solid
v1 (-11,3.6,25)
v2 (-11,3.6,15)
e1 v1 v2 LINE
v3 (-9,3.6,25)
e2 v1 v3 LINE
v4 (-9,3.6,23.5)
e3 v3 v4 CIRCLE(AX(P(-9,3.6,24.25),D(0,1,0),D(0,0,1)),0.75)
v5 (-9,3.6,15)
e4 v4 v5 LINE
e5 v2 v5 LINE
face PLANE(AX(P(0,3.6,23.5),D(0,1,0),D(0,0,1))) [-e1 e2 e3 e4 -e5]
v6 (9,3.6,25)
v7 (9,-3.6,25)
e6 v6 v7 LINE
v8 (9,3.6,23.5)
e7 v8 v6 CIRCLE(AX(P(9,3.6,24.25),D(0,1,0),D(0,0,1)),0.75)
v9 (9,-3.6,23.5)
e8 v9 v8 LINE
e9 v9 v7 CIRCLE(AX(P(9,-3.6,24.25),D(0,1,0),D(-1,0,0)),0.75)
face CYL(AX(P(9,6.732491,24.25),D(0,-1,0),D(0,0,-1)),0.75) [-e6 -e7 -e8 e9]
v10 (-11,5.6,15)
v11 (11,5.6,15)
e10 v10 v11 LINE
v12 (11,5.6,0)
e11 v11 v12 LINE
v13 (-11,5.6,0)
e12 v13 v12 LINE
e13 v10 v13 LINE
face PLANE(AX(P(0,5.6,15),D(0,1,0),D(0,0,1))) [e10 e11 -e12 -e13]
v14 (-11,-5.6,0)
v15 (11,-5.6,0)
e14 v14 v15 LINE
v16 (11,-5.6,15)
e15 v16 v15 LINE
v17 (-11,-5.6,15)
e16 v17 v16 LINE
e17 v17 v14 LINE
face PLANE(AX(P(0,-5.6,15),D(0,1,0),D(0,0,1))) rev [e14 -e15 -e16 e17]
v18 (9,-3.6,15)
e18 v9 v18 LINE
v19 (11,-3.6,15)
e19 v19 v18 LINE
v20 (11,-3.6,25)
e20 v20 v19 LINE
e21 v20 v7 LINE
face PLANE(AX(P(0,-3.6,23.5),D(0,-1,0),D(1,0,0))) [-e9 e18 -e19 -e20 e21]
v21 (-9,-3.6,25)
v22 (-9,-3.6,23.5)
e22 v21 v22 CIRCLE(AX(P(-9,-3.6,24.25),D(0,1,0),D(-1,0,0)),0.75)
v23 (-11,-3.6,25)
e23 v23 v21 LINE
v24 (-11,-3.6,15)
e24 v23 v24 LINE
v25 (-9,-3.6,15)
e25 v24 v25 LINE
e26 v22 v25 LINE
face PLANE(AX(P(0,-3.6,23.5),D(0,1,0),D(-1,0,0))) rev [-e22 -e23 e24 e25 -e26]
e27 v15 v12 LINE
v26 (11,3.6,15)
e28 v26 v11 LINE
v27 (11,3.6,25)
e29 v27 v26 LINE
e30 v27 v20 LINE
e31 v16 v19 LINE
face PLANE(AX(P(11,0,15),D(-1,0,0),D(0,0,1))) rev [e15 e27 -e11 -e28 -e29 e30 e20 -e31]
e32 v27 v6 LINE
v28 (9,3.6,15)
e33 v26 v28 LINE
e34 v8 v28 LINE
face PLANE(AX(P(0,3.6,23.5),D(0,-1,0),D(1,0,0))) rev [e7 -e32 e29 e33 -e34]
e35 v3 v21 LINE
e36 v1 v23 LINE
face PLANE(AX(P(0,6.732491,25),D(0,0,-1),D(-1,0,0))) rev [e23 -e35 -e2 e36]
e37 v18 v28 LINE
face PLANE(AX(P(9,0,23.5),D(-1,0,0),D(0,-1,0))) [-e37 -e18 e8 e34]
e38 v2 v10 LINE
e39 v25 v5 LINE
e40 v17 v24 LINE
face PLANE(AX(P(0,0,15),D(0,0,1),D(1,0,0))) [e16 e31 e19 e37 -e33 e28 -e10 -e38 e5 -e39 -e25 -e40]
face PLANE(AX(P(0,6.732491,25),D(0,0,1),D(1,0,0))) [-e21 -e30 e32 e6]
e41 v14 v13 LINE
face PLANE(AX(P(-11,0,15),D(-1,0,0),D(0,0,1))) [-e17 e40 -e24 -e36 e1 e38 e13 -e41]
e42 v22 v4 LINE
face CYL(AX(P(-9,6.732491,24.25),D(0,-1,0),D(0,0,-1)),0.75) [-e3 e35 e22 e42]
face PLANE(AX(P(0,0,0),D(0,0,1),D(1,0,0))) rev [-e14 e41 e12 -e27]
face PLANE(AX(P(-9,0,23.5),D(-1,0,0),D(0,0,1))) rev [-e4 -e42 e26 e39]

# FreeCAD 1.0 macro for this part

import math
import FreeCAD as App
import Part
import Sketcher


def add_polygon(sketch, points):
    """Adds a closed chain of lines whose ends are joined by coincident constraints."""
    first, n = sketch.GeometryCount, len(points)
    for a, b in zip(points, points[1:] + points[:1]):
        sketch.addGeometry(Part.LineSegment(App.Vector(*a, 0), App.Vector(*b, 0)), False)
    for i in range(n):
        sketch.addConstraint(Sketcher.Constraint("Coincident", first + i, 2, first + (i + 1) % n, 1))

doc = App.newDocument("Part")
body = doc.addObject("PartDesign::Body", "Body")

# Sketch on XY plane
sketch1 = body.newObject("Sketcher::SketchObject", "Sketch")
sketch1.AttachmentSupport = (doc.getObject("XY_Plane"), [""])
sketch1.MapMode = "FlatFace"
add_polygon(sketch1, [(11, 5.6), (-11, 5.6), (-11, -5.6), (11, -5.6)])  # lines 0-3
sketch1.addConstraint([
    Sketcher.Constraint("Horizontal", 0),
    Sketcher.Constraint("Vertical", 1),
    Sketcher.Constraint("Horizontal", 2),
    Sketcher.Constraint("Vertical", 3),
    Sketcher.Constraint("Symmetric", 0, 2, 2, 2, -1, 1),
    Sketcher.Constraint("DistanceX", 0, 2, 0, 1, 22.0),
    Sketcher.Constraint("DistanceY", 1, 2, 1, 1, 11.2),
])
pad1 = body.newObject("PartDesign::Pad", "Pad")
pad1.Profile = sketch1
pad1.Length = 15

# Sketch on XY plane
sketch2 = body.newObject("Sketcher::SketchObject", "Sketch001")
sketch2.AttachmentSupport = (doc.getObject("XY_Plane"), [""])
sketch2.MapMode = "FlatFace"
sketch2.AttachmentOffset = App.Placement(App.Vector(0, 0, 15), App.Rotation())
add_polygon(sketch2, [(-11, 3.6), (-11, -3.6), (-9, -3.6), (-9, 3.6)])  # lines 0-3
add_polygon(sketch2, [(9, 3.6), (9, -3.6), (11, -3.6), (11, 3.6)])  # lines 4-7
sketch2.addConstraint([
    Sketcher.Constraint("Vertical", 0),
    Sketcher.Constraint("Horizontal", 1),
    Sketcher.Constraint("Vertical", 2),
    Sketcher.Constraint("Horizontal", 3),
    Sketcher.Constraint("Vertical", 4),
    Sketcher.Constraint("Horizontal", 5),
    Sketcher.Constraint("Vertical", 6),
    Sketcher.Constraint("Horizontal", 7),
    Sketcher.Constraint("Symmetric", 2, 2, 4, 2, -1, 1),
    Sketcher.Constraint("Symmetric", 0, 2, 6, 2, -1, 1),
    Sketcher.Constraint("Horizontal", 1, 2, 4, 2),
    Sketcher.Constraint("DistanceX", 1, 1, 1, 2, 2.0),
    Sketcher.Constraint("DistanceY", 0, 2, 0, 1, 7.2),
    Sketcher.Constraint("DistanceX", 0, 2, -1, 1, 11.0),
])
pad2 = body.newObject("PartDesign::Pad", "Pad001")
pad2.Profile = sketch2
pad2.Length = 8.5

# Sketch on XZ plane
sketch3 = body.newObject("Sketcher::SketchObject", "Sketch002")
sketch3.AttachmentSupport = (doc.getObject("XZ_Plane"), [""])
sketch3.MapMode = "FlatFace"
sketch3.AttachmentOffset = App.Placement(App.Vector(0, 0, 3.6), App.Rotation())
sketch3.addGeometry([
    Part.LineSegment(App.Vector(-11, 23.5, 0), App.Vector(-11, 25, 0)),
    Part.LineSegment(App.Vector(-11, 25, 0), App.Vector(-9, 25, 0)),
    Part.ArcOfCircle(Part.Circle(App.Vector(-9, 24.25, 0), App.Vector(0, 0, 1), 0.75), math.radians(-90), math.radians(90)),
    Part.LineSegment(App.Vector(-9, 23.5, 0), App.Vector(-11, 23.5, 0)),
], False)
sketch3.addConstraint([
    Sketcher.Constraint("Coincident", 0, 2, 1, 1),
    Sketcher.Constraint("Tangent", 1, 2, 2, 2),
    Sketcher.Constraint("Tangent", 2, 1, 3, 1),
    Sketcher.Constraint("Coincident", 3, 2, 0, 1),
    Sketcher.Constraint("Vertical", 0),
    Sketcher.Constraint("Horizontal", 1),
    Sketcher.Constraint("Horizontal", 3),
    Sketcher.Constraint("DistanceX", 1, 1, 1, 2, 2.0),
    Sketcher.Constraint("Radius", 2, 0.75),
    Sketcher.Constraint("DistanceX", 2, 3, -1, 1, 9.0),
    Sketcher.Constraint("DistanceY", -1, 1, 0, 2, 25.0),
])
pad3 = body.newObject("PartDesign::Pad", "Pad002")
pad3.Profile = sketch3
pad3.Length = 7.2
pad3.Reversed = True
doc.recompute()

mirrored = body.newObject("PartDesign::Mirrored", "Mirrored")
mirrored.Originals = [pad3]
mirrored.MirrorPlane = (doc.getObject("YZ_Plane"), [""])
body.Tip = mirrored

doc.recompute()
